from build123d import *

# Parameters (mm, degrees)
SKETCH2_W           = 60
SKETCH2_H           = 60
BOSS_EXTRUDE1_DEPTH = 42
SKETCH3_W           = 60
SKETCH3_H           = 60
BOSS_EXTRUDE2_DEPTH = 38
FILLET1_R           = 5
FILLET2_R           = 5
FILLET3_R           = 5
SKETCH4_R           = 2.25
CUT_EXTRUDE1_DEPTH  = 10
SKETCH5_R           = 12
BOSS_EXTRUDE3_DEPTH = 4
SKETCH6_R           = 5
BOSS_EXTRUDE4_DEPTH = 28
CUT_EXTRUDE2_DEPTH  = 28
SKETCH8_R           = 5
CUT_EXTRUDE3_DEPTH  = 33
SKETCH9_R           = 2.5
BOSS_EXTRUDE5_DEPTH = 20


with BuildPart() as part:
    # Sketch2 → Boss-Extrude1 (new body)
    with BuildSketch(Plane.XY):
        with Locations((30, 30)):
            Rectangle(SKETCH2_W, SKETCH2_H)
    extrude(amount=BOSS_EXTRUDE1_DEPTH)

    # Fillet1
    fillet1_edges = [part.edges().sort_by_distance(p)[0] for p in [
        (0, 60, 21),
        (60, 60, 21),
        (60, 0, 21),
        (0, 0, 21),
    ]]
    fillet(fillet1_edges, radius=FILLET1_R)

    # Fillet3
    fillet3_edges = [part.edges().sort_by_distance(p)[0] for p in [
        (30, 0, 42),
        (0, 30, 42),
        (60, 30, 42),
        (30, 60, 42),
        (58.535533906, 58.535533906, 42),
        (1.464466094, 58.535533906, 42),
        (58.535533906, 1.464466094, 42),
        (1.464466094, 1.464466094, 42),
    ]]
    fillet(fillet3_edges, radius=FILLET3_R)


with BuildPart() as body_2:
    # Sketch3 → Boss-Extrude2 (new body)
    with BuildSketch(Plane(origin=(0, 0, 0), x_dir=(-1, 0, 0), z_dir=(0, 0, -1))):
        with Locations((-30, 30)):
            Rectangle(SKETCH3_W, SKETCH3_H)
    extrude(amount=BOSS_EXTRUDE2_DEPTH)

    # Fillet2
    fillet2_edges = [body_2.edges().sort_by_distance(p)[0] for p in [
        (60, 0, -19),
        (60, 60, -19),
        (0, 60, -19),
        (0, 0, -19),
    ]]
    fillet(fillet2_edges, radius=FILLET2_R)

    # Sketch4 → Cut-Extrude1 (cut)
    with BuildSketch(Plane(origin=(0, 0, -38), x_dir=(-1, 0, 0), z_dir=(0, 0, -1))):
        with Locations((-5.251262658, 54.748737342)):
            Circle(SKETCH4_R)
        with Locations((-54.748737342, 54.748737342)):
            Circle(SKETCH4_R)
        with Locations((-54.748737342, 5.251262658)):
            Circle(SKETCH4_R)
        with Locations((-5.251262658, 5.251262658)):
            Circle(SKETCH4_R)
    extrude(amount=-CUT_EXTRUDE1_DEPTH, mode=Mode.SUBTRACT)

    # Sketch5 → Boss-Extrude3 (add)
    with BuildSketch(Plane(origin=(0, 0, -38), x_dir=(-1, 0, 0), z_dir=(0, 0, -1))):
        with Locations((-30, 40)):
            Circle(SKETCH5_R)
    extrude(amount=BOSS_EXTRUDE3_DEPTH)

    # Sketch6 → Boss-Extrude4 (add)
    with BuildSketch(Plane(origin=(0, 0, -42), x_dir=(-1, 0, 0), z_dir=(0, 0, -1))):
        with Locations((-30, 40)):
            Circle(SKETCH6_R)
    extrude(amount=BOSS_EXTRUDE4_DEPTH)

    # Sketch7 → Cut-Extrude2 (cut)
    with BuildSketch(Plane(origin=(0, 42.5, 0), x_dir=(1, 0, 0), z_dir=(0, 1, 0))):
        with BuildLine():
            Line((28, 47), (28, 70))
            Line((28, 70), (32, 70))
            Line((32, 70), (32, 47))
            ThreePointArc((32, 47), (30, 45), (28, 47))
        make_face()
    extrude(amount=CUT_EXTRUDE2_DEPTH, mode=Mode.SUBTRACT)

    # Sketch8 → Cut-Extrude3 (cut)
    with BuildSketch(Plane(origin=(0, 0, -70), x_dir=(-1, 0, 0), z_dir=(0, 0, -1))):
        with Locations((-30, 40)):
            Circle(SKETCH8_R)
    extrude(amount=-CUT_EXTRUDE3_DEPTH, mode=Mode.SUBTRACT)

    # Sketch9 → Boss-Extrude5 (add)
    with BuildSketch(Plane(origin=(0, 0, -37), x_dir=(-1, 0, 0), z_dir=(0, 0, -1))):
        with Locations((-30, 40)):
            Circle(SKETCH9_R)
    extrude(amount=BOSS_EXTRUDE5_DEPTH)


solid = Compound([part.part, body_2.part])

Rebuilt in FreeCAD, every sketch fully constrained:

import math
import FreeCAD as App
import Part
import Sketcher
from FreeCAD import Vector


def edges_at(feature, points):
    """Names of the edges that pass closest to the given points."""
    edges = feature.Shape.Edges
    near = lambda p: min(range(len(edges)), key=lambda i: edges[i].distToShape(Part.Vertex(*p))[0])
    return sorted({f"Edge{near(p) + 1}" for p in points})

doc = App.newDocument("Part")
params = doc.addObject("Spreadsheet::Sheet", "Params")
for row, (alias, value) in enumerate([
    ("sketch1_width", "60 mm"),
    ("pad1_length", "42 mm"),
    ("fillet_radius", "5 mm"),
    ("fillet2_radius", "5 mm"),
    ("sketch2_width", "60 mm"),
    ("pad2_length", "38 mm"),
    ("fillet3_radius", "5 mm"),
    ("sketch3_diameter", "4.5 mm"),
    ("pocket1_length", "10 mm"),
    ("sketch4_diameter", "24 mm"),
    ("pad3_length", "4 mm"),
    ("sketch5_diameter", "10 mm"),
    ("pad4_length", "28 mm"),
    ("sketch6_radius", "2 mm"),
    ("sketch6_height", "23 mm"),
    ("pocket2_length", "28 mm"),
    ("sketch7_diameter", "10 mm"),
    ("pocket3_length", "33 mm"),
    ("sketch8_diameter", "5 mm"),
    ("pad5_length", "20 mm"),
], start=1):
    params.set(f"A{row}", alias)
    params.set(f"B{row}", "=" + value)
    params.setAlias(f"B{row}", alias)

body = doc.addObject("PartDesign::Body", "Body")

sketch1 = body.newObject("Sketcher::SketchObject", "Sketch")
sketch1.AttachmentSupport = (doc.getObject("XY_Plane"), [""])
sketch1.MapMode = "FlatFace"
sketch1.addGeometry([
    Part.LineSegment(Vector(0, 60, 0), Vector(0, 0, 0)),
    Part.LineSegment(Vector(0, 0, 0), Vector(60, 0, 0)),
    Part.LineSegment(Vector(60, 0, 0), Vector(60, 60, 0)),
    Part.LineSegment(Vector(60, 60, 0), Vector(0, 60, 0)),
], False)
sketch1.addConstraint([
    Sketcher.Constraint("Coincident", 0, 2, 1, 1),
    Sketcher.Constraint("Coincident", 1, 2, 2, 1),
    Sketcher.Constraint("Coincident", 2, 2, 3, 1),
    Sketcher.Constraint("Coincident", 3, 2, 0, 1),
    Sketcher.Constraint("Vertical", 0),
    Sketcher.Constraint("Horizontal", 1),
    Sketcher.Constraint("Vertical", 2),
    Sketcher.Constraint("Horizontal", 3),
    Sketcher.Constraint("Coincident", 0, 2, -1, 1),
    Sketcher.Constraint("Equal", 3, 0),
    Sketcher.Constraint("DistanceX", 1, 1, 1, 2, 60.0),
])
sketch1.setExpression("Constraints[10]", "Params.sketch1_width")
pad1 = body.newObject("PartDesign::Pad", "Pad")
pad1.Profile = sketch1
pad1.setExpression("Length", "Params.pad1_length")
doc.recompute()

fillet = body.newObject("PartDesign::Fillet", "Fillet")
fillet.Base = (pad1, edges_at(pad1, [
    (0, 60, 21),
    (60, 60, 21),
    (60, 0, 21),
    (0, 0, 21),
]))
fillet.setExpression("Radius", "Params.fillet_radius")
doc.recompute()

fillet2 = body.newObject("PartDesign::Fillet", "Fillet001")
fillet2.Base = (fillet, edges_at(fillet, [
    (30, 0, 42),
    (0, 30, 42),
    (60, 30, 42),
    (30, 60, 42),
    (58.536, 58.536, 42),
    (1.464, 58.536, 42),
    (58.536, 1.464, 42),
    (1.464, 1.464, 42),
]))
fillet2.setExpression("Radius", "Params.fillet2_radius")
body2 = doc.addObject("PartDesign::Body", "Body001")

sketch2 = body2.newObject("Sketcher::SketchObject", "Sketch001")
sketch2.AttachmentSupport = (doc.getObject("XY_Plane001"), [""])
sketch2.MapMode = "FlatFace"
sketch2.addGeometry([
    Part.LineSegment(Vector(60, 60, 0), Vector(60, 0, 0)),
    Part.LineSegment(Vector(60, 0, 0), Vector(0, 0, 0)),
    Part.LineSegment(Vector(0, 0, 0), Vector(0, 60, 0)),
    Part.LineSegment(Vector(0, 60, 0), Vector(60, 60, 0)),
], False)
sketch2.addConstraint([
    Sketcher.Constraint("Coincident", 0, 2, 1, 1),
    Sketcher.Constraint("Coincident", 1, 2, 2, 1),
    Sketcher.Constraint("Coincident", 2, 2, 3, 1),
    Sketcher.Constraint("Coincident", 3, 2, 0, 1),
    Sketcher.Constraint("Vertical", 0),
    Sketcher.Constraint("Horizontal", 1),
    Sketcher.Constraint("Vertical", 2),
    Sketcher.Constraint("Horizontal", 3),
    Sketcher.Constraint("Coincident", 1, 2, -1, 1),
    Sketcher.Constraint("Equal", 3, 0),
    Sketcher.Constraint("DistanceX", 1, 2, 1, 1, 60.0),
])
sketch2.setExpression("Constraints[10]", "Params.sketch2_width")
pad2 = body2.newObject("PartDesign::Pad", "Pad001")
pad2.Profile = sketch2
pad2.setExpression("Length", "Params.pad2_length")
pad2.Reversed = True
doc.recompute()

fillet3 = body2.newObject("PartDesign::Fillet", "Fillet002")
fillet3.Base = (pad2, edges_at(pad2, [
    (60, 0, -19),
    (60, 60, -19),
    (0, 60, -19),
    (0, 0, -19),
]))
fillet3.setExpression("Radius", "Params.fillet3_radius")

sketch3 = body2.newObject("Sketcher::SketchObject", "Sketch002")
sketch3.AttachmentSupport = (doc.getObject("XY_Plane001"), [""])
sketch3.MapMode = "FlatFace"
sketch3.AttachmentOffset = App.Placement(Vector(0, 0, -38), App.Rotation())
sketch3.addGeometry([
    Part.Circle(Vector(5.3, 54.7, 0), Vector(0, 0, 1), 2.2),
    Part.Circle(Vector(54.7, 54.7, 0), Vector(0, 0, 1), 2.2),
    Part.Circle(Vector(54.7, 5.3, 0), Vector(0, 0, 1), 2.2),
    Part.Circle(Vector(5.3, 5.3, 0), Vector(0, 0, 1), 2.2),
], False)
sketch3.addConstraint([
    Sketcher.Constraint("Equal", 0, 1),
    Sketcher.Constraint("Equal", 1, 2),
    Sketcher.Constraint("Equal", 2, 3),
    Sketcher.Constraint("Horizontal", 0, 3, 1, 3),
    Sketcher.Constraint("Horizontal", 2, 3, 3, 3),
    Sketcher.Constraint("Vertical", 1, 3, 2, 3),
    Sketcher.Constraint("Vertical", 0, 3, 3, 3),
    Sketcher.Constraint("Diameter", 0, 4.5),
    Sketcher.Constraint("DistanceX", -1, 1, 0, 3, 5.251263),
    Sketcher.Constraint("DistanceY", -1, 1, 0, 3, 54.748737),
    Sketcher.Constraint("DistanceX", -1, 1, 1, 3, 54.748737),
    Sketcher.Constraint("DistanceY", -1, 1, 2, 3, 5.251263),
])
sketch3.setExpression("Constraints[7]", "Params.sketch3_diameter")
pocket1 = body2.newObject("PartDesign::Pocket", "Pocket")
pocket1.Profile = sketch3
pocket1.setExpression("Length", "Params.pocket1_length")
pocket1.Reversed = True

sketch4 = body2.newObject("Sketcher::SketchObject", "Sketch003")
sketch4.AttachmentSupport = (doc.getObject("XY_Plane001"), [""])
sketch4.MapMode = "FlatFace"
sketch4.AttachmentOffset = App.Placement(Vector(0, 0, -38), App.Rotation())
sketch4.addGeometry(Part.Circle(Vector(30, 40, 0), Vector(0, 0, 1), 12), False)
sketch4.addConstraint([
    Sketcher.Constraint("Diameter", 0, 24.0),
    Sketcher.Constraint("DistanceX", -1, 1, 0, 3, 30.0),
    Sketcher.Constraint("DistanceY", -1, 1, 0, 3, 40.0),
])
sketch4.setExpression("Constraints[0]", "Params.sketch4_diameter")
pad3 = body2.newObject("PartDesign::Pad", "Pad002")
pad3.Profile = sketch4
pad3.setExpression("Length", "Params.pad3_length")
pad3.Reversed = True

sketch5 = body2.newObject("Sketcher::SketchObject", "Sketch004")
sketch5.AttachmentSupport = (doc.getObject("XY_Plane001"), [""])
sketch5.MapMode = "FlatFace"
sketch5.AttachmentOffset = App.Placement(Vector(0, 0, -42), App.Rotation())
sketch5.addGeometry(Part.Circle(Vector(30, 40, 0), Vector(0, 0, 1), 5), False)
sketch5.addConstraint([
    Sketcher.Constraint("Diameter", 0, 10.0),
    Sketcher.Constraint("DistanceX", -1, 1, 0, 3, 30.0),
    Sketcher.Constraint("DistanceY", -1, 1, 0, 3, 40.0),
])
sketch5.setExpression("Constraints[0]", "Params.sketch5_diameter")
pad4 = body2.newObject("PartDesign::Pad", "Pad003")
pad4.Profile = sketch5
pad4.setExpression("Length", "Params.pad4_length")
pad4.Reversed = True

sketch6 = body2.newObject("Sketcher::SketchObject", "Sketch005")
sketch6.AttachmentSupport = (doc.getObject("XZ_Plane001"), [""])
sketch6.MapMode = "FlatFace"
sketch6.AttachmentOffset = App.Placement(Vector(0, 0, -42.5), App.Rotation())
sketch6.addGeometry([
    Part.LineSegment(Vector(28, -70, 0), Vector(28, -47, 0)),
    Part.ArcOfCircle(Part.Circle(Vector(30, -47, 0), Vector(0, 0, 1), 2), math.radians(0), math.radians(180)),
    Part.LineSegment(Vector(32, -47, 0), Vector(32, -70, 0)),
    Part.LineSegment(Vector(32, -70, 0), Vector(28, -70, 0)),
], False)
sketch6.addConstraint([
    Sketcher.Constraint("Tangent", 0, 2, 1, 2),
    Sketcher.Constraint("Tangent", 1, 1, 2, 1),
    Sketcher.Constraint("Coincident", 2, 2, 3, 1),
    Sketcher.Constraint("Coincident", 3, 2, 0, 1),
    Sketcher.Constraint("Vertical", 0),
    Sketcher.Constraint("Vertical", 2),
    Sketcher.Constraint("Horizontal", 3),
    Sketcher.Constraint("Radius", 1, 2.0),
    Sketcher.Constraint("DistanceY", 0, 1, 0, 2, 23.0),
    Sketcher.Constraint("DistanceX", -1, 1, 1, 3, 30.0),
    Sketcher.Constraint("DistanceY", 1, 3, -1, 1, 47.0),
])
sketch6.setExpression("Constraints[7]", "Params.sketch6_radius")
sketch6.setExpression("Constraints[8]", "Params.sketch6_height")
pocket2 = body2.newObject("PartDesign::Pocket", "Pocket001")
pocket2.Profile = sketch6
pocket2.setExpression("Length", "Params.pocket2_length")

sketch7 = body2.newObject("Sketcher::SketchObject", "Sketch006")
sketch7.AttachmentSupport = (doc.getObject("XY_Plane001"), [""])
sketch7.MapMode = "FlatFace"
sketch7.AttachmentOffset = App.Placement(Vector(0, 0, -70), App.Rotation())
sketch7.addGeometry(Part.Circle(Vector(30, 40, 0), Vector(0, 0, 1), 5), False)
sketch7.addConstraint([
    Sketcher.Constraint("Diameter", 0, 10.0),
    Sketcher.Constraint("DistanceX", -1, 1, 0, 3, 30.0),
    Sketcher.Constraint("DistanceY", -1, 1, 0, 3, 40.0),
])
sketch7.setExpression("Constraints[0]", "Params.sketch7_diameter")
pocket3 = body2.newObject("PartDesign::Pocket", "Pocket002")
pocket3.Profile = sketch7
pocket3.setExpression("Length", "Params.pocket3_length")
pocket3.Reversed = True

sketch8 = body2.newObject("Sketcher::SketchObject", "Sketch007")
sketch8.AttachmentSupport = (doc.getObject("XY_Plane001"), [""])
sketch8.MapMode = "FlatFace"
sketch8.AttachmentOffset = App.Placement(Vector(0, 0, -37), App.Rotation())
sketch8.addGeometry(Part.Circle(Vector(30, 40, 0), Vector(0, 0, 1), 2.5), False)
sketch8.addConstraint([
    Sketcher.Constraint("Diameter", 0, 5.0),
    Sketcher.Constraint("DistanceX", -1, 1, 0, 3, 30.0),
    Sketcher.Constraint("DistanceY", -1, 1, 0, 3, 40.0),
])
sketch8.setExpression("Constraints[0]", "Params.sketch8_diameter")
pad5 = body2.newObject("PartDesign::Pad", "Pad004")
pad5.Profile = sketch8
pad5.setExpression("Length", "Params.pad5_length")
pad5.Reversed = True

doc.recompute()
